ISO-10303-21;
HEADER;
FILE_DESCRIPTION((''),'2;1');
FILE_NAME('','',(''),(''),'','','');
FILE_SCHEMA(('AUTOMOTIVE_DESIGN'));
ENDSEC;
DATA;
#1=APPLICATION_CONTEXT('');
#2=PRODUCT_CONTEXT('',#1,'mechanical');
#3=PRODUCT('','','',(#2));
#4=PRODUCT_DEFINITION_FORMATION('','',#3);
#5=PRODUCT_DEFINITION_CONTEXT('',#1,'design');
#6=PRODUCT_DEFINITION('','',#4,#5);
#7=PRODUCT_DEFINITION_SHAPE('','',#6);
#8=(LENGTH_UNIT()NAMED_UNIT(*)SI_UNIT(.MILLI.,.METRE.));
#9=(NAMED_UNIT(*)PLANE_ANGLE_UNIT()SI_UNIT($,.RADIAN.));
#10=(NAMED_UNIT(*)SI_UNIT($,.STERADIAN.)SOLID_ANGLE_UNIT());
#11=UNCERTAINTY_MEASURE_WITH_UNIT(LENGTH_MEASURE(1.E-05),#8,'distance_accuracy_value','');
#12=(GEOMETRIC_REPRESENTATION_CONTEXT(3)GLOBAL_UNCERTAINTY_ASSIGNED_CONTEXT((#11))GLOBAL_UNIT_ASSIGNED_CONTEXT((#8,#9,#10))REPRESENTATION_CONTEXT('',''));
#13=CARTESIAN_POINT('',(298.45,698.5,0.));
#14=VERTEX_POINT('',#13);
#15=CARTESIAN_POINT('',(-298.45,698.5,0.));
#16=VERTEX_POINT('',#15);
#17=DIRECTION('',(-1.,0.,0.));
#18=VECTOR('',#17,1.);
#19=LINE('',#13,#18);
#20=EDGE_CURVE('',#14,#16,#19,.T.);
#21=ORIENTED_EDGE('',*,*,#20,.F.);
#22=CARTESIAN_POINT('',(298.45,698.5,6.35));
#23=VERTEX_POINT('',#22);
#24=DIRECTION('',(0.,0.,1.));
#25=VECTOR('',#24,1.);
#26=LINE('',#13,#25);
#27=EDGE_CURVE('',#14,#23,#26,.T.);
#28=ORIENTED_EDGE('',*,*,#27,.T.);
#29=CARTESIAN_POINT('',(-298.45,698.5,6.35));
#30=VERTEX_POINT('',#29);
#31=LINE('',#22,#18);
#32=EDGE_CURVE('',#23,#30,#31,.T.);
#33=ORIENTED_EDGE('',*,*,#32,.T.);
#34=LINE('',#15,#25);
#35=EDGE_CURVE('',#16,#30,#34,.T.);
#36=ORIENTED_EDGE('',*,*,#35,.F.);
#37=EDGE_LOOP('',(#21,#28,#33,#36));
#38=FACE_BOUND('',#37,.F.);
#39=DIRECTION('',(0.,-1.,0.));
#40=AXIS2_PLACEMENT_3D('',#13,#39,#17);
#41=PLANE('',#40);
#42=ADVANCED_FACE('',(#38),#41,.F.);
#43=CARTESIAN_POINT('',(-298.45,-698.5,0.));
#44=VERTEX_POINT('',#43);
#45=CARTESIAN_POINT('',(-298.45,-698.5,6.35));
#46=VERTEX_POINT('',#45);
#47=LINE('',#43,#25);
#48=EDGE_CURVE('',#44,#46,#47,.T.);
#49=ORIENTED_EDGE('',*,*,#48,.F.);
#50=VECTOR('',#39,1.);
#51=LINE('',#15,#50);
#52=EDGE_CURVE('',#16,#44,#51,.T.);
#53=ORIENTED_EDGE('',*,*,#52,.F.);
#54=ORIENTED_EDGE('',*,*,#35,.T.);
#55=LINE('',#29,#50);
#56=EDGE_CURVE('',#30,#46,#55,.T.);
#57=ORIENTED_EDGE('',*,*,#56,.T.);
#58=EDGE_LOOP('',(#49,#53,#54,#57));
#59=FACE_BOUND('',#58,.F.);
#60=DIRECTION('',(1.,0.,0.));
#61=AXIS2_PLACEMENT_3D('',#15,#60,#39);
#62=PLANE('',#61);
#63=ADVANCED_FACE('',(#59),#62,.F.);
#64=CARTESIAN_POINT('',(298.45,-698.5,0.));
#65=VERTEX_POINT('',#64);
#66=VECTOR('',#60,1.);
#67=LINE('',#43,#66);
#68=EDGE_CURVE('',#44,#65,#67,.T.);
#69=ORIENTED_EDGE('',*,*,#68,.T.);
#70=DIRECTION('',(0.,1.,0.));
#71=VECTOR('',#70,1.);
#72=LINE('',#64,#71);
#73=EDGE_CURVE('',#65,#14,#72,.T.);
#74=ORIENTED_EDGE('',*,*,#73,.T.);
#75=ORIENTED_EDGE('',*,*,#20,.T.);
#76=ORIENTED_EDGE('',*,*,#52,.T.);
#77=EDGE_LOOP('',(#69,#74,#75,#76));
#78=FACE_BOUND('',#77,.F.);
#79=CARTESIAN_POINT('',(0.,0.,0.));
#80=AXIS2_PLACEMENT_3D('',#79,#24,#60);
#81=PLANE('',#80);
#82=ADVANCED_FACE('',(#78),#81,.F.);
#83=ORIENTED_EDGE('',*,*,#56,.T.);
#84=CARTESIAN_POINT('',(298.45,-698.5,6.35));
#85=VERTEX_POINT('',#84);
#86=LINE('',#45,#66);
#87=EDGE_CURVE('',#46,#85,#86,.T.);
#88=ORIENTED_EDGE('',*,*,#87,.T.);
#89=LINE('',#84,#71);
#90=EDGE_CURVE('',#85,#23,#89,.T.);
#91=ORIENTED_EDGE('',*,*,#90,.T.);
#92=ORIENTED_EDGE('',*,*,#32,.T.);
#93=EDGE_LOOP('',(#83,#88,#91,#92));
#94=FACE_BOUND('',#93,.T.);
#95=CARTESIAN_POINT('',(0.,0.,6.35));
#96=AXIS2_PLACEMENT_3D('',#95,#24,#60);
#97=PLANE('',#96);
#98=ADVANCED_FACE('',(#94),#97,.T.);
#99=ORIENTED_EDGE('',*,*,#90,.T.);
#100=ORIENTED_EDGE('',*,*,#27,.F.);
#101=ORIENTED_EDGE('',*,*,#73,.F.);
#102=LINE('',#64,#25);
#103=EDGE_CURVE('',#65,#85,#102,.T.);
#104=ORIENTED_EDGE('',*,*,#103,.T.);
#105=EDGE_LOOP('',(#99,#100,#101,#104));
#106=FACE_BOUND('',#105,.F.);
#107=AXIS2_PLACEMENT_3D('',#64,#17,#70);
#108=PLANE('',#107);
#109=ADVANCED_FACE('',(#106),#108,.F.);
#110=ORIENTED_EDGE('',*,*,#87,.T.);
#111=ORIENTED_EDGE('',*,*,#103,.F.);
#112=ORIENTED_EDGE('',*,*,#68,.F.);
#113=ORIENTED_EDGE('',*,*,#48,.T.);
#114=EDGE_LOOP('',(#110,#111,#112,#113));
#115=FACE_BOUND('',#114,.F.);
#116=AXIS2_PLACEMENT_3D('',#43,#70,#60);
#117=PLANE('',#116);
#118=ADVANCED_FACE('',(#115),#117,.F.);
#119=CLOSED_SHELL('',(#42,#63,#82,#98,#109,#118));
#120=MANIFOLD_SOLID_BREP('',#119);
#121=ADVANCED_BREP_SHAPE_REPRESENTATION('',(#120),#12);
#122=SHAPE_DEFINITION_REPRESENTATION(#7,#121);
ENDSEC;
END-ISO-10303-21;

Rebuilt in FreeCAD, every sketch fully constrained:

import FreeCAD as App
import Part
import Sketcher
from FreeCAD import Vector
Q = App.Units.Quantity

doc = App.newDocument("Part")
body = doc.addObject("PartDesign::Body", "Body")

# Sketch on XY plane
sketch1 = body.newObject("Sketcher::SketchObject", "Sketch")
sketch1.AttachmentSupport = (doc.getObject("XY_Plane"), [""])
sketch1.MapMode = "FlatFace"
sketch1.addGeometry([
    Part.LineSegment(Vector(-298.45, 698.5, 0), Vector(-298.45, -698.5, 0)),
    Part.LineSegment(Vector(-298.45, -698.5, 0), Vector(298.45, -698.5, 0)),
    Part.LineSegment(Vector(298.45, -698.5, 0), Vector(298.45, 698.5, 0)),
    Part.LineSegment(Vector(298.45, 698.5, 0), Vector(-298.45, 698.5, 0)),
], False)
sketch1.addConstraint([
    Sketcher.Constraint("Coincident", 0, 2, 1, 1),
    Sketcher.Constraint("Coincident", 1, 2, 2, 1),
    Sketcher.Constraint("Coincident", 2, 2, 3, 1),
    Sketcher.Constraint("Coincident", 3, 2, 0, 1),
    Sketcher.Constraint("Vertical", 0),
    Sketcher.Constraint("Horizontal", 1),
    Sketcher.Constraint("Vertical", 2),
    Sketcher.Constraint("Horizontal", 3),
    Sketcher.Constraint("Symmetric", 0, 2, 2, 2, -1, 1),
    Sketcher.Constraint("DistanceY", 0, 2, 0, 1, Q("55 in")),
    Sketcher.Constraint("DistanceX", 1, 1, 1, 2, Q("23.5 in")),
])
pad1 = body.newObject("PartDesign::Pad", "Pad")
pad1.Profile = sketch1
pad1.Length = Q("0.25 in")

doc.recompute()
